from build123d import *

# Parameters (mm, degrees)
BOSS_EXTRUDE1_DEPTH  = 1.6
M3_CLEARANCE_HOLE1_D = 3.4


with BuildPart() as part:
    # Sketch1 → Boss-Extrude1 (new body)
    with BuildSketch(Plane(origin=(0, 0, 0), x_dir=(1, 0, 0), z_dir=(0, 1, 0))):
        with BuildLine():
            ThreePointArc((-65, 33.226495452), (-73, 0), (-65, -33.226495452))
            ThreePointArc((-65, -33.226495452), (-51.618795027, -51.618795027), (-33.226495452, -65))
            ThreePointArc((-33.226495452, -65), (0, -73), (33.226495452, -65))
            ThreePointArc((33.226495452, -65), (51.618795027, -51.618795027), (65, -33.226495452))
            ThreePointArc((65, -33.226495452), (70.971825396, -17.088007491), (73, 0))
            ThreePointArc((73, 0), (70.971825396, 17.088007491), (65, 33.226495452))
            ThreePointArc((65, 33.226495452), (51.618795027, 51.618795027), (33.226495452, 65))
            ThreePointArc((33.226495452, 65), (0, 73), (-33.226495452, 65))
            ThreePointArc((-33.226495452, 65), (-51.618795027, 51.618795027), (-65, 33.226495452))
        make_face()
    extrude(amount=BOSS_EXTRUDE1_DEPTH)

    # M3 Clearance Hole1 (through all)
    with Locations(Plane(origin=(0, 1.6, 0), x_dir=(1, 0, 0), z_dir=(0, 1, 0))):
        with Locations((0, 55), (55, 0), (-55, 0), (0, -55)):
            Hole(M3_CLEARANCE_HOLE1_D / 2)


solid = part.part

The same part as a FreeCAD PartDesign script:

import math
import FreeCAD as App
import Part
import Sketcher
Q = App.Units.Quantity

doc = App.newDocument("Part")
body = doc.addObject("PartDesign::Body", "Body")

sketch1 = doc.addObject("Sketcher::SketchObject", "Sketch")
body.addObject(sketch1)
sketch1.AttachmentSupport = (doc.XZ_Plane, [""])
sketch1.MapMode = "FlatFace"
sketch1.addGeometry([
    Part.ArcOfCircle(Part.Circle(App.Vector(0, 0, 0), App.Vector(0, 0, 1), 73), math.radians(152.924933), math.radians(207.075067)),
    Part.ArcOfCircle(Part.Circle(App.Vector(0, 0, 0), App.Vector(0, 0, 1), 73), math.radians(117.075067), math.radians(152.924933)),
    Part.ArcOfCircle(Part.Circle(App.Vector(0, 0, 0), App.Vector(0, 0, 1), 73), math.radians(62.924933), math.radians(117.075067)),
    Part.ArcOfCircle(Part.Circle(App.Vector(0, 0, 0), App.Vector(0, 0, 1), 73), math.radians(27.075067), math.radians(62.924933)),
    Part.ArcOfCircle(Part.Circle(App.Vector(0, 0, 0), App.Vector(0, 0, 1), 73), math.radians(0), math.radians(27.075067)),
    Part.ArcOfCircle(Part.Circle(App.Vector(0, 0, 0), App.Vector(0, 0, 1), 73), math.radians(-27.075067), math.radians(0)),
    Part.ArcOfCircle(Part.Circle(App.Vector(0, 0, 0), App.Vector(0, 0, 1), 73), math.radians(-62.924933), math.radians(-27.075067)),
    Part.ArcOfCircle(Part.Circle(App.Vector(0, 0, 0), App.Vector(0, 0, 1), 73), math.radians(-117.075067), math.radians(-62.924933)),
    Part.ArcOfCircle(Part.Circle(App.Vector(0, 0, 0), App.Vector(0, 0, 1), 73), math.radians(-152.924933), math.radians(-117.075067)),
], False)
sketch1.addConstraint([
    Sketcher.Constraint("Tangent", 0, 1, 1, 2),
    Sketcher.Constraint("Tangent", 1, 1, 2, 2),
    Sketcher.Constraint("Tangent", 2, 1, 3, 2),
    Sketcher.Constraint("Tangent", 3, 1, 4, 2),
    Sketcher.Constraint("Tangent", 4, 1, 5, 2),
    Sketcher.Constraint("Tangent", 5, 1, 6, 2),
    Sketcher.Constraint("Tangent", 6, 1, 7, 2),
    Sketcher.Constraint("Tangent", 7, 1, 8, 2),
    Sketcher.Constraint("Tangent", 8, 1, 0, 2),
    Sketcher.Constraint("Coincident", 0, 3, -1, 1),
    Sketcher.Constraint("Coincident", 2, 3, -1, 1),
    Sketcher.Constraint("Coincident", 4, 3, -1, 1),
    Sketcher.Constraint("Coincident", 6, 3, -1, 1),
    Sketcher.Constraint("PointOnObject", 4, 1, -1),
    Sketcher.Constraint("Horizontal", 1, 1, 2, 1),
    Sketcher.Constraint("Horizontal", 0, 1, 3, 1),
    Sketcher.Constraint("Horizontal", 6, 1, 7, 1),
    Sketcher.Constraint("Horizontal", 5, 1, 8, 1),
    Sketcher.Constraint("Vertical", 3, 1, 5, 1),
    Sketcher.Constraint("Vertical", 2, 1, 6, 1),
    Sketcher.Constraint("Radius", 0, Q("73 mm")),
    Sketcher.Constraint("DistanceX", 0, 1, -1, 1, Q("65 mm")),
    Sketcher.Constraint("DistanceY", -1, 1, 1, 1, Q("65 mm")),
])
pad1 = doc.addObject("PartDesign::Pad", "Pad")
body.addObject(pad1)
pad1.Profile = sketch1
pad1.Length = 1.6
pad1.Reversed = True

sketch2 = doc.addObject("Sketcher::SketchObject", "Sketch001")
body.addObject(sketch2)
sketch2.AttachmentSupport = (doc.XZ_Plane, [""])
sketch2.MapMode = "FlatFace"
sketch2.AttachmentOffset = App.Placement(App.Vector(0, 0, -1.6), App.Rotation())
sketch2.addGeometry([
    Part.Circle(App.Vector(0, -55, 0), App.Vector(0, 0, 1), 1.7),
    Part.Circle(App.Vector(55, 0, 0), App.Vector(0, 0, 1), 1.7),
    Part.Circle(App.Vector(-55, 0, 0), App.Vector(0, 0, 1), 1.7),
    Part.Circle(App.Vector(0, 55, 0), App.Vector(0, 0, 1), 1.7),
], False)
sketch2.addConstraint([
    Sketcher.Constraint("Equal", 0, 1),
    Sketcher.Constraint("Equal", 1, 2),
    Sketcher.Constraint("Equal", 2, 3),
    Sketcher.Constraint("Symmetric", 1, 3, 2, 3, -1, 1),
    Sketcher.Constraint("Symmetric", 0, 3, 3, 3, -1, 1),
    Sketcher.Constraint("PointOnObject", 0, 3, -2),
    Sketcher.Constraint("PointOnObject", 1, 3, -1),
    Sketcher.Constraint("Diameter", 0, Q("3.4 mm")),
    Sketcher.Constraint("DistanceY", 0, 3, -1, 1, Q("55 mm")),
    Sketcher.Constraint("DistanceX", -1, 1, 1, 3, Q("55 mm")),
])
doc.recompute()
hole = doc.addObject("PartDesign::Hole", "Hole")
body.addObject(hole)
hole.Profile = sketch2
hole.ThreadType = "None"
hole.Diameter = 3.4
hole.DepthType = "ThroughAll"
hole.Reversed = True

doc.recompute()
